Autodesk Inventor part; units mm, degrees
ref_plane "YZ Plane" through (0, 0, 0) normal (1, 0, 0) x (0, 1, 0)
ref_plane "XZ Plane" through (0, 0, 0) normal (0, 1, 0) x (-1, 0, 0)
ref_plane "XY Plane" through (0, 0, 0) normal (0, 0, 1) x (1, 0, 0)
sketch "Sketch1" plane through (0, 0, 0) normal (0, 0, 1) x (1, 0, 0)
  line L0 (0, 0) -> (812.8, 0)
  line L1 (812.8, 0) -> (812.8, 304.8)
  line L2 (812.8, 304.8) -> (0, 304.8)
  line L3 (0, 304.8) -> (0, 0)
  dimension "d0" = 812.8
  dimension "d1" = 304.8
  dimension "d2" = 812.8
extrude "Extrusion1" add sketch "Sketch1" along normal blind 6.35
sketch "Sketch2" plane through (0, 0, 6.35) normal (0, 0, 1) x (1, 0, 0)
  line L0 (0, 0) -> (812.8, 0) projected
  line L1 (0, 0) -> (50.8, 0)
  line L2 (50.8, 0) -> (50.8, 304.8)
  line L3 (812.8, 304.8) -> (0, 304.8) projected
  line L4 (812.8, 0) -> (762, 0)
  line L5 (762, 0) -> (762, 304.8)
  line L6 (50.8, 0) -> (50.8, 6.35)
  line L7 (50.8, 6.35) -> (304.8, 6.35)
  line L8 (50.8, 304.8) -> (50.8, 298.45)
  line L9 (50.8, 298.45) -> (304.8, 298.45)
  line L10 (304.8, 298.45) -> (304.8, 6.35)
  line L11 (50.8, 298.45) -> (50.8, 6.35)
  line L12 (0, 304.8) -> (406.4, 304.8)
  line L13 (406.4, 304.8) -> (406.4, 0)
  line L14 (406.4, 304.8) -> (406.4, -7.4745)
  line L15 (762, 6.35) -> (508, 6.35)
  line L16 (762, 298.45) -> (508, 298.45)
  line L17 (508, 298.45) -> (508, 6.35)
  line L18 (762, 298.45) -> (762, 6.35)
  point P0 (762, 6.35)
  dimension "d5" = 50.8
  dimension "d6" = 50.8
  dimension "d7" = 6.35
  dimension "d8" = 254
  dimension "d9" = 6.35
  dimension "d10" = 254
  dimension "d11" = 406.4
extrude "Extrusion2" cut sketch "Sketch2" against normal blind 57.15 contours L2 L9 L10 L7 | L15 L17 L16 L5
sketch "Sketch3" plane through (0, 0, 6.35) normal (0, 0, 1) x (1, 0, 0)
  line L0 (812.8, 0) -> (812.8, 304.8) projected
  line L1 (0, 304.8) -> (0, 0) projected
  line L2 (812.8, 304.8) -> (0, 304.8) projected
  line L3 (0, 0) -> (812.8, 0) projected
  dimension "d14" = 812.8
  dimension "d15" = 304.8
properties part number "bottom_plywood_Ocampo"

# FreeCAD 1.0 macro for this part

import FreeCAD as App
import Part
import Sketcher
from FreeCAD import Vector
Q = App.Units.Quantity

doc = App.newDocument("Part")
body = doc.addObject("PartDesign::Body", "Body")

sketch1 = body.newObject("Sketcher::SketchObject", "Sketch")
sketch1.AttachmentSupport = (doc.getObject("XY_Plane"), [""])
sketch1.MapMode = "FlatFace"
sketch1.addGeometry(Part.LineSegment(Vector(0, 305, 0), Vector(0, 0, 0)), False)
sketch1.addGeometry(Part.LineSegment(Vector(0, 0, 0), Vector(813, 0, 0)), False)
sketch1.addGeometry(Part.LineSegment(Vector(813, 0, 0), Vector(813, 305, 0)), False)
sketch1.addGeometry(Part.LineSegment(Vector(813, 305, 0), Vector(0, 305, 0)), False)
sketch1.addConstraint(Sketcher.Constraint("Coincident", 0, 2, 1, 1))
sketch1.addConstraint(Sketcher.Constraint("Coincident", 1, 2, 2, 1))
sketch1.addConstraint(Sketcher.Constraint("Coincident", 2, 2, 3, 1))
sketch1.addConstraint(Sketcher.Constraint("Coincident", 3, 2, 0, 1))
sketch1.addConstraint(Sketcher.Constraint("Vertical", 0))
sketch1.addConstraint(Sketcher.Constraint("Horizontal", 1))
sketch1.addConstraint(Sketcher.Constraint("Vertical", 2))
sketch1.addConstraint(Sketcher.Constraint("Horizontal", 3))
sketch1.addConstraint(Sketcher.Constraint("Coincident", 0, 2, -1, 1))
sketch1.addConstraint(Sketcher.Constraint("DistanceX", 1, 1, 1, 2, Q("32 in")))
sketch1.addConstraint(Sketcher.Constraint("DistanceY", 0, 2, 0, 1, Q("12 in")))
pad1 = body.newObject("PartDesign::Pad", "Pad")
pad1.Profile = sketch1
pad1.Length = Q("0.25 in")

sketch2 = body.newObject("Sketcher::SketchObject", "Sketch001")
sketch2.AttachmentSupport = (doc.getObject("XY_Plane"), [""])
sketch2.MapMode = "FlatFace"
sketch2.AttachmentOffset = App.Placement(Vector(0, 0, 0.25 * 25.4), App.Rotation())
sketch2.addGeometry(Part.LineSegment(Vector(51, 298, 0), Vector(51, 6, 0)), False)
sketch2.addGeometry(Part.LineSegment(Vector(51, 6, 0), Vector(305, 6, 0)), False)
sketch2.addGeometry(Part.LineSegment(Vector(305, 6, 0), Vector(305, 298, 0)), False)
sketch2.addGeometry(Part.LineSegment(Vector(305, 298, 0), Vector(51, 298, 0)), False)
sketch2.addGeometry(Part.LineSegment(Vector(508, 6, 0), Vector(762, 6, 0)), False)
sketch2.addGeometry(Part.LineSegment(Vector(762, 6, 0), Vector(762, 298, 0)), False)
sketch2.addGeometry(Part.LineSegment(Vector(762, 298, 0), Vector(508, 298, 0)), False)
sketch2.addGeometry(Part.LineSegment(Vector(508, 298, 0), Vector(508, 6, 0)), False)
sketch2.addConstraint(Sketcher.Constraint("Coincident", 0, 2, 1, 1))
sketch2.addConstraint(Sketcher.Constraint("Coincident", 1, 2, 2, 1))
sketch2.addConstraint(Sketcher.Constraint("Coincident", 2, 2, 3, 1))
sketch2.addConstraint(Sketcher.Constraint("Coincident", 3, 2, 0, 1))
sketch2.addConstraint(Sketcher.Constraint("Coincident", 4, 2, 5, 1))
sketch2.addConstraint(Sketcher.Constraint("Coincident", 5, 2, 6, 1))
sketch2.addConstraint(Sketcher.Constraint("Coincident", 6, 2, 7, 1))
sketch2.addConstraint(Sketcher.Constraint("Coincident", 7, 2, 4, 1))
sketch2.addConstraint(Sketcher.Constraint("Vertical", 0))
sketch2.addConstraint(Sketcher.Constraint("Horizontal", 1))
sketch2.addConstraint(Sketcher.Constraint("Vertical", 2))
sketch2.addConstraint(Sketcher.Constraint("Horizontal", 3))
sketch2.addConstraint(Sketcher.Constraint("Horizontal", 4))
sketch2.addConstraint(Sketcher.Constraint("Vertical", 5))
sketch2.addConstraint(Sketcher.Constraint("Horizontal", 6))
sketch2.addConstraint(Sketcher.Constraint("Vertical", 7))
sketch2.addConstraint(Sketcher.Constraint("Horizontal", 1, 2, 4, 2))
sketch2.addConstraint(Sketcher.Constraint("Horizontal", 3, 2, 5, 2))
sketch2.addConstraint(Sketcher.Constraint("Equal", 3, 4))
sketch2.addConstraint(Sketcher.Constraint("DistanceX", 1, 1, 1, 2, Q("10 in")))
sketch2.addConstraint(Sketcher.Constraint("DistanceX", -1, 1, 0, 2, Q("2 in")))
sketch2.addConstraint(Sketcher.Constraint("DistanceY", -1, 1, 0, 2, Q("0.25 in")))
sketch2.addConstraint(Sketcher.Constraint("DistanceY", 0, 2, 0, 1, Q("11.5 in")))
sketch2.addConstraint(Sketcher.Constraint("DistanceX", -1, 1, 4, 2, Q("30 in")))
pocket1 = body.newObject("PartDesign::Pocket", "Pocket")
pocket1.Profile = sketch2
pocket1.Length = Q("2.25 in")

doc.recompute()
